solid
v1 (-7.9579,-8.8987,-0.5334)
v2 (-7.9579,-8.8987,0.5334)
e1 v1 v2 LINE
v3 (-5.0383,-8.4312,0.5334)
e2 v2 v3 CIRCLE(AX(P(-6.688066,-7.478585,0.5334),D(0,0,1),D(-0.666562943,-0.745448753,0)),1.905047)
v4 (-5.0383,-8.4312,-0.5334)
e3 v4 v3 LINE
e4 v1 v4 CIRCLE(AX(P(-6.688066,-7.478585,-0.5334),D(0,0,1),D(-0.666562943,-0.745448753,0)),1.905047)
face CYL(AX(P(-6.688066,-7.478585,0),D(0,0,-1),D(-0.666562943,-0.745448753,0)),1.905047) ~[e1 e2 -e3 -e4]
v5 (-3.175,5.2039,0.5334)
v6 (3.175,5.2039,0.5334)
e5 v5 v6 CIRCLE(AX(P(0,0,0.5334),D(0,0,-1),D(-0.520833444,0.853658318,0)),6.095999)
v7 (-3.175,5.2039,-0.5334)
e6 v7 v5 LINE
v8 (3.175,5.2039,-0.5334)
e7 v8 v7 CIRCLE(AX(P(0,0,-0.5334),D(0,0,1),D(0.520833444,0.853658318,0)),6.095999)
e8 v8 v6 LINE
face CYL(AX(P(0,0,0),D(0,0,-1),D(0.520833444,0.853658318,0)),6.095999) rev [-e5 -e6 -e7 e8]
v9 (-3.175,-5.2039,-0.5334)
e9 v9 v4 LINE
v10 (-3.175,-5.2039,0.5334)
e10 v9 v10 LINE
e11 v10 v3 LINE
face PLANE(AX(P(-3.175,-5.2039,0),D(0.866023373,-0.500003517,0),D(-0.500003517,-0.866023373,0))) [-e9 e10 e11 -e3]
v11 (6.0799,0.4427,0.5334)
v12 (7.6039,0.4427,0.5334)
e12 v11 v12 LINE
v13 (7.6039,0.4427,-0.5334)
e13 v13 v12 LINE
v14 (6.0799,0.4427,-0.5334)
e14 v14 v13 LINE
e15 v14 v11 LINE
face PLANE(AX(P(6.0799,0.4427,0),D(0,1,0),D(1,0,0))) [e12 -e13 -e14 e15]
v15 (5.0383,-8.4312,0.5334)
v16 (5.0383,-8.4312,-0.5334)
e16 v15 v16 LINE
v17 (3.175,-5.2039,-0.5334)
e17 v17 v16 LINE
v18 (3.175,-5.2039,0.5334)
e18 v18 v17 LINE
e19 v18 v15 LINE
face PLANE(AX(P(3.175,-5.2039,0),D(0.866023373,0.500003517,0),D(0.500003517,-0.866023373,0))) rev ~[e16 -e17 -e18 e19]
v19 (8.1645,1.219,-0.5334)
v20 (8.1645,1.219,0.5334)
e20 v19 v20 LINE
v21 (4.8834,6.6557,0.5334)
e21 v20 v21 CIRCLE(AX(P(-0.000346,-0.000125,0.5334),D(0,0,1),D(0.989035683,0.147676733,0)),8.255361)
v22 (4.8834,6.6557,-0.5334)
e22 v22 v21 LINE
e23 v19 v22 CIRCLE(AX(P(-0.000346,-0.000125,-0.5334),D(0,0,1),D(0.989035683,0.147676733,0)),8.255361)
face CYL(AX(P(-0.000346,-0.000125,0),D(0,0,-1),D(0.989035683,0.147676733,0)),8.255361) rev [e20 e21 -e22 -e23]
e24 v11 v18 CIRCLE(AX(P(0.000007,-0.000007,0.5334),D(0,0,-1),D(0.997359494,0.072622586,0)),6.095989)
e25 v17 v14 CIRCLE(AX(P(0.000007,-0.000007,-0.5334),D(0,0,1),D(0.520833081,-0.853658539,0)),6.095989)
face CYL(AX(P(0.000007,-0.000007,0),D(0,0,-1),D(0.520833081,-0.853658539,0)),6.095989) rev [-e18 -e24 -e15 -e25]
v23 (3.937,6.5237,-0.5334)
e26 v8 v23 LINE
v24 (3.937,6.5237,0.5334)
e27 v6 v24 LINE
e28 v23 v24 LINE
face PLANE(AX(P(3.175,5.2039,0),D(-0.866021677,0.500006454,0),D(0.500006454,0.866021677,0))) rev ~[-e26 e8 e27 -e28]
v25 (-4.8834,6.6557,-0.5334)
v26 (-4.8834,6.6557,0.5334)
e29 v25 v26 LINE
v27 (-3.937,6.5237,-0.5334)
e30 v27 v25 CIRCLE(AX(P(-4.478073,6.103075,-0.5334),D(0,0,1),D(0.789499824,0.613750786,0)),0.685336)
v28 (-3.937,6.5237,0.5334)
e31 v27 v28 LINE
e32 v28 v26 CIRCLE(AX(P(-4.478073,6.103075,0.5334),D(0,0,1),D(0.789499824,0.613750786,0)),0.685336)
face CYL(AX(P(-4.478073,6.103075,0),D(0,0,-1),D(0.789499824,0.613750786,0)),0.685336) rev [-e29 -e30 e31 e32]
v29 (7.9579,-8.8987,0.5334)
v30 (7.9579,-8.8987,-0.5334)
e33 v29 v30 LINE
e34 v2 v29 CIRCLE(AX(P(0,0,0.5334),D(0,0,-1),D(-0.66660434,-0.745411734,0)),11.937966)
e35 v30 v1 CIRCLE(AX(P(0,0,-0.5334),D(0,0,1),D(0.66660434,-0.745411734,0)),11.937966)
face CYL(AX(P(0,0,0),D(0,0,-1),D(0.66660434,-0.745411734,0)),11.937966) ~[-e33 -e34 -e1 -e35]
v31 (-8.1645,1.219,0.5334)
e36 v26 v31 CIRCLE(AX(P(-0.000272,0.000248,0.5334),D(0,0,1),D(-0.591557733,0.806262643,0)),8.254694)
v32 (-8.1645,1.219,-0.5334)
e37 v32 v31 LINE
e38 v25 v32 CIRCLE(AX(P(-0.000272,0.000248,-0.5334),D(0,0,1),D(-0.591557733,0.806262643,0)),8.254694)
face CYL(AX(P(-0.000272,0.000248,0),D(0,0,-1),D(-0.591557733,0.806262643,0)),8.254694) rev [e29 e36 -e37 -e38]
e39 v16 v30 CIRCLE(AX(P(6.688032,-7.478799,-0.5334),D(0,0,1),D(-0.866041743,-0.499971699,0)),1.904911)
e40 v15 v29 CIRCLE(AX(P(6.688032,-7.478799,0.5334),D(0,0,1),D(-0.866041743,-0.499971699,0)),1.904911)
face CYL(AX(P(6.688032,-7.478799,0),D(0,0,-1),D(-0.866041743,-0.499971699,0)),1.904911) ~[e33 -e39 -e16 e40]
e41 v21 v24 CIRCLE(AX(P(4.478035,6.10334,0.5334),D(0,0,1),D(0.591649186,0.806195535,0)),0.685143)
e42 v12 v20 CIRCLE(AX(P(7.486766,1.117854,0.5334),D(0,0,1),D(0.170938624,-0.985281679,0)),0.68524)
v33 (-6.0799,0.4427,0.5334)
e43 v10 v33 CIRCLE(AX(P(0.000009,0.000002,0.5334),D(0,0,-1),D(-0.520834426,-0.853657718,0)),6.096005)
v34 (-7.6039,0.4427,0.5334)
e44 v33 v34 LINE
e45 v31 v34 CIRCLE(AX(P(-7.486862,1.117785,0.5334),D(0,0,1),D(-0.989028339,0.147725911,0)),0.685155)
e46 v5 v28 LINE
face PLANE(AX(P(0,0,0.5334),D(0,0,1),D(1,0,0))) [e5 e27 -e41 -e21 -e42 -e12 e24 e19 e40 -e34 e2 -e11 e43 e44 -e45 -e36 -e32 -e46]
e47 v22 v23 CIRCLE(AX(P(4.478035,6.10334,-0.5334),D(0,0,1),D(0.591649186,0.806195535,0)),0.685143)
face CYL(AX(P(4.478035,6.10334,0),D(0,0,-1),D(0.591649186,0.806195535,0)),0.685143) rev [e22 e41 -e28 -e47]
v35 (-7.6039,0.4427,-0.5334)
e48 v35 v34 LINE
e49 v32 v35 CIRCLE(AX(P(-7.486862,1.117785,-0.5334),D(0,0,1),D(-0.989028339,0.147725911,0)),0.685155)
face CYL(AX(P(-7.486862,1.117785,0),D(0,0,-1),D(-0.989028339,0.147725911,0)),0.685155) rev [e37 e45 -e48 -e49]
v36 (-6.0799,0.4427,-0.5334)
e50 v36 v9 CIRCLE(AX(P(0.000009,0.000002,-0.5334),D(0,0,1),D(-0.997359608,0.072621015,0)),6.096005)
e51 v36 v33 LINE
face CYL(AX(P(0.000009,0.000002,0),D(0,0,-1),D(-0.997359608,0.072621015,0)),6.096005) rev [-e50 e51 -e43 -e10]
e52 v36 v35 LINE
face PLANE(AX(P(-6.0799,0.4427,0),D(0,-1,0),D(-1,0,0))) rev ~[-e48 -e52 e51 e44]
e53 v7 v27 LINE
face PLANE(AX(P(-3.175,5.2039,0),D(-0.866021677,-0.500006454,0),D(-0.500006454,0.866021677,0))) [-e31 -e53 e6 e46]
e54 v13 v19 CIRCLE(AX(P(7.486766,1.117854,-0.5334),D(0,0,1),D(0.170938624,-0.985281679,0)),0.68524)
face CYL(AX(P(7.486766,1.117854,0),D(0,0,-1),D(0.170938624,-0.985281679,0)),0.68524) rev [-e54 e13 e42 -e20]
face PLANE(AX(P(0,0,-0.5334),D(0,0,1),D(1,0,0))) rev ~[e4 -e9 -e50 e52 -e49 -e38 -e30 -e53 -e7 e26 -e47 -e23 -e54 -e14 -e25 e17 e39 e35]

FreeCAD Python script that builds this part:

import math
import FreeCAD as App
import Part
import Sketcher
from FreeCAD import Vector
Q = App.Units.Quantity

doc = App.newDocument("Part")
body = doc.addObject("PartDesign::Body", "Body")

# Sketch on XY plane
sketch1 = body.newObject("Sketcher::SketchObject", "Sketch")
sketch1.AttachmentSupport = (doc.getObject("XY_Plane"), [""])
sketch1.MapMode = "FlatFace"
sketch1.addGeometry([
    Part.ArcOfCircle(Part.Circle(Vector(-6.7, -7.5, 0), Vector(0, 0, 1), 1.9), math.radians(-132), math.radians(-30)),  # 0
    Part.LineSegment(Vector(-5, -8.4, 0), Vector(-3.2, -5.2, 0)),  # 1
    Part.ArcOfCircle(Part.Circle(Vector(0, 0, 0), Vector(0, 0, 1), 6.1), math.radians(176), math.radians(239)),  # 2
    Part.LineSegment(Vector(-6.1, 0.4, 0), Vector(-7.6, 0.4, 0)),  # 3
    Part.ArcOfCircle(Part.Circle(Vector(-7.5, 1.1, 0), Vector(0, 0, 1), 0.7), math.radians(172), math.radians(260)),  # 4
    Part.ArcOfCircle(Part.Circle(Vector(0, 0, 0), Vector(0, 0, 1), 8.3), math.radians(126), math.radians(172)),  # 5
    Part.ArcOfCircle(Part.Circle(Vector(-4.5, 6.1, 0), Vector(0, 0, 1), 0.7), math.radians(38), math.radians(126)),  # 6
    Part.LineSegment(Vector(-3.9, 6.5, 0), Vector(-3.2, 5.2, 0)),  # 7
    Part.ArcOfCircle(Part.Circle(Vector(0, 0, 0), Vector(0, 0, 1), 6.1), math.radians(59), math.radians(121)),  # 8
    Part.LineSegment(Vector(3.2, 5.2, 0), Vector(3.9, 6.5, 0)),  # 9
    Part.ArcOfCircle(Part.Circle(Vector(4.5, 6.1, 0), Vector(0, 0, 1), 0.7), math.radians(54), math.radians(142)),  # 10
    Part.ArcOfCircle(Part.Circle(Vector(0, 0, 0), Vector(0, 0, 1), 8.3), math.radians(8), math.radians(54)),  # 11
    Part.ArcOfCircle(Part.Circle(Vector(7.5, 1.1, 0), Vector(0, 0, 1), 0.7), math.radians(-80), math.radians(8)),  # 12
    Part.LineSegment(Vector(7.6, 0.4, 0), Vector(6.1, 0.4, 0)),  # 13
    Part.ArcOfCircle(Part.Circle(Vector(0, 0, 0), Vector(0, 0, 1), 6.1), math.radians(-59), math.radians(4)),  # 14
    Part.LineSegment(Vector(3.2, -5.2, 0), Vector(5, -8.4, 0)),  # 15
    Part.ArcOfCircle(Part.Circle(Vector(6.7, -7.5, 0), Vector(0, 0, 1), 1.9), math.radians(-150), math.radians(-48)),  # 16
    Part.ArcOfCircle(Part.Circle(Vector(0, 0, 0), Vector(0, 0, 1), 11.9), math.radians(-48), math.radians(228)),  # 17
], False)
sketch1.addConstraint([
    Sketcher.Constraint("Tangent", 0, 2, 1, 1),
    Sketcher.Constraint("Coincident", 1, 2, 2, 2),
    Sketcher.Constraint("Coincident", 2, 1, 3, 1),
    Sketcher.Constraint("Coincident", 3, 2, 4, 2),
    Sketcher.Constraint("Tangent", 4, 1, 5, 2),
    Sketcher.Constraint("Tangent", 5, 1, 6, 2),
    Sketcher.Constraint("Coincident", 6, 1, 7, 1),
    Sketcher.Constraint("Coincident", 7, 2, 8, 2),
    Sketcher.Constraint("Coincident", 8, 1, 9, 1),
    Sketcher.Constraint("Coincident", 9, 2, 10, 2),
    Sketcher.Constraint("Tangent", 10, 1, 11, 2),
    Sketcher.Constraint("Tangent", 11, 1, 12, 2),
    Sketcher.Constraint("Coincident", 12, 1, 13, 1),
    Sketcher.Constraint("Coincident", 13, 2, 14, 2),
    Sketcher.Constraint("Coincident", 14, 1, 15, 1),
    Sketcher.Constraint("Tangent", 15, 2, 16, 1),
    Sketcher.Constraint("Tangent", 16, 2, 17, 1),
    Sketcher.Constraint("Tangent", 17, 2, 0, 1),
    Sketcher.Constraint("Horizontal", 3),
    Sketcher.Constraint("Horizontal", 13),
    Sketcher.Constraint("Coincident", 2, 3, -1, 1),
    Sketcher.Constraint("Coincident", 5, 3, -1, 1),
    Sketcher.Constraint("Coincident", 8, 3, -1, 1),
    Sketcher.Constraint("Coincident", 11, 3, -1, 1),
    Sketcher.Constraint("Coincident", 14, 3, -1, 1),
    Sketcher.Constraint("Coincident", 17, 3, -1, 1),
    Sketcher.Constraint("Equal", 4, 6),
    Sketcher.Constraint("Equal", 2, 8),
    Sketcher.Constraint("Equal", 6, 10),
    Sketcher.Constraint("Equal", 5, 11),
    Sketcher.Constraint("Equal", 10, 12),
    Sketcher.Constraint("Equal", 8, 14),
    Sketcher.Constraint("Equal", 0, 16),
    Sketcher.Constraint("Symmetric", 6, 1, 9, 2, -2),
    Sketcher.Constraint("Symmetric", 3, 2, 12, 1, -2),
    Sketcher.Constraint("Symmetric", 0, 2, 15, 2, -2),
    Sketcher.Constraint("Parallel", 1, 9),
    Sketcher.Constraint("Parallel", 7, 15),
    Sketcher.Constraint("Vertical", 1, 2, 7, 2),
    Sketcher.Constraint("Radius", 2, Q("0.24 in")),
    Sketcher.Constraint("Radius", 17, Q("0.47 in")),
    Sketcher.Constraint("Angle", 1, Q("59.9998 deg")),
    Sketcher.Constraint("Radius", 0, Q("0.075 in")),
    Sketcher.Constraint("Radius", 5, Q("0.325 in")),
    Sketcher.Constraint("DistanceX", 3, 2, 3, 1, Q("0.06 in")),
    Sketcher.Constraint("Distance", 7, Q("0.06 in")),
    Sketcher.Constraint("Radius", 4, Q("0.6852 mm")),
    Sketcher.Constraint("DistanceX", 7, 2, 9, 2, Q("0.28 in")),
    Sketcher.Constraint("DistanceY", -1, 1, 4, 3, Q("0.044 in")),
])
pad1 = body.newObject("PartDesign::Pad", "Pad")
pad1.Profile = sketch1
pad1.Length = Q("0.042 in")
pad1.Midplane = True

doc.recompute()
